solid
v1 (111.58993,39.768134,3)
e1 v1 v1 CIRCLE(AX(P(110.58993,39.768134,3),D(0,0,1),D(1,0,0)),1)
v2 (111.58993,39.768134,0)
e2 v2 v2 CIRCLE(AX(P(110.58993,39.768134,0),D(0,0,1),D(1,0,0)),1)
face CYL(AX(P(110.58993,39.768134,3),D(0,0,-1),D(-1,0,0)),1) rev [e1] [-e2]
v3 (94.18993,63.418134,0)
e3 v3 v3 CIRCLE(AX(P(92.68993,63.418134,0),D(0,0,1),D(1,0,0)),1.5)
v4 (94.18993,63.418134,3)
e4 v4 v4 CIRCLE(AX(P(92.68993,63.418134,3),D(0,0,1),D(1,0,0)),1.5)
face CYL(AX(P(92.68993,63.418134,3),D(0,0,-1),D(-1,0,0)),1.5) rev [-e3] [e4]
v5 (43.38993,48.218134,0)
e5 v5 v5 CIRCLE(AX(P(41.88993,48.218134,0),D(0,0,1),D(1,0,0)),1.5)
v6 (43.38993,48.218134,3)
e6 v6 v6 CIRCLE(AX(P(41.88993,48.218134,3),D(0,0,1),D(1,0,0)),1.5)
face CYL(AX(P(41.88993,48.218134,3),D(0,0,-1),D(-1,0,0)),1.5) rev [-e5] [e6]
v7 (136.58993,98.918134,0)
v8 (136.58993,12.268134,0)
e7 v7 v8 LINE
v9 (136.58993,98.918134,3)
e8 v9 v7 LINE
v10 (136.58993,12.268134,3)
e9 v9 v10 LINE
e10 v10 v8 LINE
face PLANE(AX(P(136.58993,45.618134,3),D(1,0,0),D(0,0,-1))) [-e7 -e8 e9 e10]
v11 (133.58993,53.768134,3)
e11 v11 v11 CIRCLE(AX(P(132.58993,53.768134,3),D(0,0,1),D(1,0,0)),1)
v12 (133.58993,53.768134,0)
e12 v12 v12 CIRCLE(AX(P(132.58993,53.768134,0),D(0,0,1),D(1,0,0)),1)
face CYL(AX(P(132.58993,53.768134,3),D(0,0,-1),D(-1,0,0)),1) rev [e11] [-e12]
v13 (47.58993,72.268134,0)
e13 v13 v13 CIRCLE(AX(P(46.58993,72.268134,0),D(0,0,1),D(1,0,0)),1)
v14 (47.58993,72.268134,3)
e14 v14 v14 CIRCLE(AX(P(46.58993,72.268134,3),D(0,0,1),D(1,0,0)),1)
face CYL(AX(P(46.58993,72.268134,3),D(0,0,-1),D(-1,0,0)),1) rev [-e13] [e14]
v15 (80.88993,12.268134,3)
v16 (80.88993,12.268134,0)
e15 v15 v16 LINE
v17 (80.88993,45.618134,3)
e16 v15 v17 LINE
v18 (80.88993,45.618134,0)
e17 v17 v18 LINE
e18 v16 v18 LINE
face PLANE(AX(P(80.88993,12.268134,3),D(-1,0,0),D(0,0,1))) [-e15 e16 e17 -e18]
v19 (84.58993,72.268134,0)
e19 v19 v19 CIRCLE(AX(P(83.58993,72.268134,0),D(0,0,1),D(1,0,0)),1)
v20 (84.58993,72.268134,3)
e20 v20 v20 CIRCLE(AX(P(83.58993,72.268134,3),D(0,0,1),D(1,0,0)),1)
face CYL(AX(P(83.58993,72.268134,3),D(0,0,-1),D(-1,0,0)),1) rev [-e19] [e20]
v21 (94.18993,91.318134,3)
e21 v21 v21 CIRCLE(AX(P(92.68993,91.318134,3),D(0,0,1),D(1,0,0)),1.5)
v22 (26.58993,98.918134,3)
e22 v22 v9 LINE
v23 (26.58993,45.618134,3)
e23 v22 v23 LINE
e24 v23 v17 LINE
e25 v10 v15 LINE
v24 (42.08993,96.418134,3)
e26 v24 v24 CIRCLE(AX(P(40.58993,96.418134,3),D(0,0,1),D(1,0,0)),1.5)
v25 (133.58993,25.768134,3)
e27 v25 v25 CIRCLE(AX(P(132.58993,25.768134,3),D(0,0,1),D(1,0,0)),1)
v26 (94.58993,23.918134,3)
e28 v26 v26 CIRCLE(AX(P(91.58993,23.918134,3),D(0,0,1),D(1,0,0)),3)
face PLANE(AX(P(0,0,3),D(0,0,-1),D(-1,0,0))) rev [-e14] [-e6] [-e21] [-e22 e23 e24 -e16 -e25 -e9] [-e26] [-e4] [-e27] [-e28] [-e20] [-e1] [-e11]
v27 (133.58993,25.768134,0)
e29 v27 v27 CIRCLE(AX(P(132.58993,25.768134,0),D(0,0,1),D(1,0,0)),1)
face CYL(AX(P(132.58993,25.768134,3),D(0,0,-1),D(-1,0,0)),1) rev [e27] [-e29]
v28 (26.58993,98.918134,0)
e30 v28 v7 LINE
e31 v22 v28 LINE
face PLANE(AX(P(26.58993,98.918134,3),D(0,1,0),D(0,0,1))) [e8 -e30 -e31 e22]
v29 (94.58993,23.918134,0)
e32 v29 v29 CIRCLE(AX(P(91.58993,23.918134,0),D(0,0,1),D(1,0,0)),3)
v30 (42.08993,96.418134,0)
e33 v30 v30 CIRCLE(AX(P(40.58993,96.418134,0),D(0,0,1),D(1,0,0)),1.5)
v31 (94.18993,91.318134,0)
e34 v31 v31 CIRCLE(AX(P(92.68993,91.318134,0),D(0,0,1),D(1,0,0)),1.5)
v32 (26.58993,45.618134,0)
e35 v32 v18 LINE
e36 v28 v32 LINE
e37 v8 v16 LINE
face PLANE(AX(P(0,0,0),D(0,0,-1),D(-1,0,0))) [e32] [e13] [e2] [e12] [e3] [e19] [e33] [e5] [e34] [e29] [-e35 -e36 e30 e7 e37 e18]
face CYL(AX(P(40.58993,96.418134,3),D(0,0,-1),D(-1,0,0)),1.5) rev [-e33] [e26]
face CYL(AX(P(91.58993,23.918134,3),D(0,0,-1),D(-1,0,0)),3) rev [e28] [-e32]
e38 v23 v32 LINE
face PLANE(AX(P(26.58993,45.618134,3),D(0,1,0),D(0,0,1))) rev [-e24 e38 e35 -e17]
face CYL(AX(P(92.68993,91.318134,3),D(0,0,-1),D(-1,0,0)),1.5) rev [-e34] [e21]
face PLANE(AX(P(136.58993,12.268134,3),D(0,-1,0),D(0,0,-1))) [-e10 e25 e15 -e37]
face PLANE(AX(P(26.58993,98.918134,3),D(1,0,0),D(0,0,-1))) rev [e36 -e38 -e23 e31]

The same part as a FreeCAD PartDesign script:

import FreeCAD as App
import Part
import Sketcher
from FreeCAD import Vector


def add_polygon(sketch, points):
    """Adds a closed chain of lines whose ends are joined by coincident constraints."""
    first, n = sketch.GeometryCount, len(points)
    for a, b in zip(points, points[1:] + points[:1]):
        sketch.addGeometry(Part.LineSegment(App.Vector(*a, 0), App.Vector(*b, 0)), False)
    for i in range(n):
        sketch.addConstraint(Sketcher.Constraint("Coincident", first + i, 2, first + (i + 1) % n, 1))

doc = App.newDocument("Part")
params = doc.addObject("Spreadsheet::Sheet", "Params")
for row, (alias, value) in enumerate([
    ("sketch1_diameter", "3 mm"),
    ("sketch1_diameter2", "6 mm"),
    ("sketch1_diameter3", "2 mm"),
    ("sketch1_width", "110 mm"),
    ("sketch1_width2", "54.3 mm"),
    ("pad1_length", "3 mm"),
], start=1):
    params.set(f"A{row}", alias)
    params.set(f"B{row}", "=" + value)
    params.setAlias(f"B{row}", alias)

body = doc.addObject("PartDesign::Body", "Body")

# Sketch on XY plane
sketch1 = doc.addObject("Sketcher::SketchObject", "Sketch")
body.addObject(sketch1)
sketch1.AttachmentSupport = (doc.XY_Plane, [""])
sketch1.MapMode = "FlatFace"
add_polygon(sketch1, [(26.6, 98.9), (26.6, 45.6), (80.9, 45.6), (80.9, 12.3), (136.6, 12.3), (136.6, 98.9)])  # lines 0-5
sketch1.addGeometry(Part.Circle(Vector(41.9, 48.2, 0), Vector(0, 0, 1), 1.5), False)  # 6
sketch1.addGeometry(Part.Circle(Vector(91.6, 23.9, 0), Vector(0, 0, 1), 3), False)  # 7
sketch1.addGeometry(Part.Circle(Vector(132.6, 25.8, 0), Vector(0, 0, 1), 1), False)  # 8
sketch1.addGeometry(Part.Circle(Vector(110.6, 39.8, 0), Vector(0, 0, 1), 1), False)  # 9
sketch1.addGeometry(Part.Circle(Vector(132.6, 53.8, 0), Vector(0, 0, 1), 1), False)  # 10
sketch1.addGeometry(Part.Circle(Vector(46.6, 72.3, 0), Vector(0, 0, 1), 1), False)  # 11
sketch1.addGeometry(Part.Circle(Vector(83.6, 72.3, 0), Vector(0, 0, 1), 1), False)  # 12
sketch1.addGeometry(Part.Circle(Vector(40.6, 96.4, 0), Vector(0, 0, 1), 1.5), False)  # 13
sketch1.addGeometry(Part.Circle(Vector(92.7, 63.4, 0), Vector(0, 0, 1), 1.5), False)  # 14
sketch1.addGeometry(Part.Circle(Vector(92.7, 91.3, 0), Vector(0, 0, 1), 1.5), False)  # 15
sketch1.addConstraint([
    Sketcher.Constraint("Vertical", 0),
    Sketcher.Constraint("Horizontal", 1),
    Sketcher.Constraint("Vertical", 2),
    Sketcher.Constraint("Horizontal", 3),
    Sketcher.Constraint("Vertical", 4),
    Sketcher.Constraint("Horizontal", 5),
    Sketcher.Constraint("Equal", 8, 9),
    Sketcher.Constraint("Equal", 9, 10),
    Sketcher.Constraint("Equal", 10, 11),
    Sketcher.Constraint("Equal", 11, 12),
    Sketcher.Constraint("Equal", 6, 13),
    Sketcher.Constraint("Equal", 13, 14),
    Sketcher.Constraint("Equal", 14, 15),
    Sketcher.Constraint("Horizontal", 11, 3, 12, 3),
    Sketcher.Constraint("Vertical", 8, 3, 10, 3),
    Sketcher.Constraint("Vertical", 14, 3, 15, 3),
    Sketcher.Constraint("Diameter", 6, 3.0),
    Sketcher.Constraint("Diameter", 7, 6.0),
    Sketcher.Constraint("Diameter", 8, 2.0),
    Sketcher.Constraint("DistanceX", 5, 2, 5, 1, 110.0),
    Sketcher.Constraint("DistanceX", 1, 1, 1, 2, 54.3),
    Sketcher.Constraint("DistanceY", 0, 2, 0, 1, 53.3),
    Sketcher.Constraint("DistanceX", 7, 3, 8, 3, 41.0),
    Sketcher.Constraint("DistanceX", 7, 3, 9, 3, 19.0),
    Sketcher.Constraint("DistanceY", 8, 3, 9, 3, 14.0),
    Sketcher.Constraint("DistanceY", 9, 3, 10, 3, 14.0),
    Sketcher.Constraint("DistanceX", 11, 3, 7, 3, 45.0),
    Sketcher.Constraint("DistanceX", 11, 3, 12, 3, 37.0),
    Sketcher.Constraint("DistanceX", 13, 3, 11, 3, 6.0),
    Sketcher.Constraint("DistanceX", 0, 2, 11, 3, 20.0),
    Sketcher.Constraint("DistanceX", 6, 3, 1, 2, 39.0),
    Sketcher.Constraint("DistanceY", 2, 2, 2, 1, 33.35),
    Sketcher.Constraint("DistanceY", 7, 3, 6, 3, 24.3),
    Sketcher.Constraint("DistanceY", 9, 3, 11, 3, 32.5),
    Sketcher.Constraint("DistanceY", 6, 3, 13, 3, 48.2),
    Sketcher.Constraint("DistanceX", 12, 3, 14, 3, 9.1),
    Sketcher.Constraint("DistanceY", 7, 3, 14, 3, 39.5),
    Sketcher.Constraint("DistanceY", 14, 3, 15, 3, 27.9),
    Sketcher.Constraint("DistanceY", 0, 2, 6, 3, 2.6),
    Sketcher.Constraint("DistanceY", 2, 2, 9, 3, 27.5),
    Sketcher.Constraint("DistanceX", -1, 1, 6, 3, 41.88993),
    Sketcher.Constraint("DistanceY", -1, 1, 6, 3, 48.218134),
])
sketch1.setExpression("Constraints[22]", "Params.sketch1_diameter")
sketch1.setExpression("Constraints[23]", "Params.sketch1_diameter2")
sketch1.setExpression("Constraints[24]", "Params.sketch1_diameter3")
sketch1.setExpression("Constraints[25]", "Params.sketch1_width")
sketch1.setExpression("Constraints[26]", "Params.sketch1_width2")
pad1 = doc.addObject("PartDesign::Pad", "Pad")
body.addObject(pad1)
pad1.Profile = sketch1
pad1.setExpression("Length", "Params.pad1_length")

doc.recompute()
